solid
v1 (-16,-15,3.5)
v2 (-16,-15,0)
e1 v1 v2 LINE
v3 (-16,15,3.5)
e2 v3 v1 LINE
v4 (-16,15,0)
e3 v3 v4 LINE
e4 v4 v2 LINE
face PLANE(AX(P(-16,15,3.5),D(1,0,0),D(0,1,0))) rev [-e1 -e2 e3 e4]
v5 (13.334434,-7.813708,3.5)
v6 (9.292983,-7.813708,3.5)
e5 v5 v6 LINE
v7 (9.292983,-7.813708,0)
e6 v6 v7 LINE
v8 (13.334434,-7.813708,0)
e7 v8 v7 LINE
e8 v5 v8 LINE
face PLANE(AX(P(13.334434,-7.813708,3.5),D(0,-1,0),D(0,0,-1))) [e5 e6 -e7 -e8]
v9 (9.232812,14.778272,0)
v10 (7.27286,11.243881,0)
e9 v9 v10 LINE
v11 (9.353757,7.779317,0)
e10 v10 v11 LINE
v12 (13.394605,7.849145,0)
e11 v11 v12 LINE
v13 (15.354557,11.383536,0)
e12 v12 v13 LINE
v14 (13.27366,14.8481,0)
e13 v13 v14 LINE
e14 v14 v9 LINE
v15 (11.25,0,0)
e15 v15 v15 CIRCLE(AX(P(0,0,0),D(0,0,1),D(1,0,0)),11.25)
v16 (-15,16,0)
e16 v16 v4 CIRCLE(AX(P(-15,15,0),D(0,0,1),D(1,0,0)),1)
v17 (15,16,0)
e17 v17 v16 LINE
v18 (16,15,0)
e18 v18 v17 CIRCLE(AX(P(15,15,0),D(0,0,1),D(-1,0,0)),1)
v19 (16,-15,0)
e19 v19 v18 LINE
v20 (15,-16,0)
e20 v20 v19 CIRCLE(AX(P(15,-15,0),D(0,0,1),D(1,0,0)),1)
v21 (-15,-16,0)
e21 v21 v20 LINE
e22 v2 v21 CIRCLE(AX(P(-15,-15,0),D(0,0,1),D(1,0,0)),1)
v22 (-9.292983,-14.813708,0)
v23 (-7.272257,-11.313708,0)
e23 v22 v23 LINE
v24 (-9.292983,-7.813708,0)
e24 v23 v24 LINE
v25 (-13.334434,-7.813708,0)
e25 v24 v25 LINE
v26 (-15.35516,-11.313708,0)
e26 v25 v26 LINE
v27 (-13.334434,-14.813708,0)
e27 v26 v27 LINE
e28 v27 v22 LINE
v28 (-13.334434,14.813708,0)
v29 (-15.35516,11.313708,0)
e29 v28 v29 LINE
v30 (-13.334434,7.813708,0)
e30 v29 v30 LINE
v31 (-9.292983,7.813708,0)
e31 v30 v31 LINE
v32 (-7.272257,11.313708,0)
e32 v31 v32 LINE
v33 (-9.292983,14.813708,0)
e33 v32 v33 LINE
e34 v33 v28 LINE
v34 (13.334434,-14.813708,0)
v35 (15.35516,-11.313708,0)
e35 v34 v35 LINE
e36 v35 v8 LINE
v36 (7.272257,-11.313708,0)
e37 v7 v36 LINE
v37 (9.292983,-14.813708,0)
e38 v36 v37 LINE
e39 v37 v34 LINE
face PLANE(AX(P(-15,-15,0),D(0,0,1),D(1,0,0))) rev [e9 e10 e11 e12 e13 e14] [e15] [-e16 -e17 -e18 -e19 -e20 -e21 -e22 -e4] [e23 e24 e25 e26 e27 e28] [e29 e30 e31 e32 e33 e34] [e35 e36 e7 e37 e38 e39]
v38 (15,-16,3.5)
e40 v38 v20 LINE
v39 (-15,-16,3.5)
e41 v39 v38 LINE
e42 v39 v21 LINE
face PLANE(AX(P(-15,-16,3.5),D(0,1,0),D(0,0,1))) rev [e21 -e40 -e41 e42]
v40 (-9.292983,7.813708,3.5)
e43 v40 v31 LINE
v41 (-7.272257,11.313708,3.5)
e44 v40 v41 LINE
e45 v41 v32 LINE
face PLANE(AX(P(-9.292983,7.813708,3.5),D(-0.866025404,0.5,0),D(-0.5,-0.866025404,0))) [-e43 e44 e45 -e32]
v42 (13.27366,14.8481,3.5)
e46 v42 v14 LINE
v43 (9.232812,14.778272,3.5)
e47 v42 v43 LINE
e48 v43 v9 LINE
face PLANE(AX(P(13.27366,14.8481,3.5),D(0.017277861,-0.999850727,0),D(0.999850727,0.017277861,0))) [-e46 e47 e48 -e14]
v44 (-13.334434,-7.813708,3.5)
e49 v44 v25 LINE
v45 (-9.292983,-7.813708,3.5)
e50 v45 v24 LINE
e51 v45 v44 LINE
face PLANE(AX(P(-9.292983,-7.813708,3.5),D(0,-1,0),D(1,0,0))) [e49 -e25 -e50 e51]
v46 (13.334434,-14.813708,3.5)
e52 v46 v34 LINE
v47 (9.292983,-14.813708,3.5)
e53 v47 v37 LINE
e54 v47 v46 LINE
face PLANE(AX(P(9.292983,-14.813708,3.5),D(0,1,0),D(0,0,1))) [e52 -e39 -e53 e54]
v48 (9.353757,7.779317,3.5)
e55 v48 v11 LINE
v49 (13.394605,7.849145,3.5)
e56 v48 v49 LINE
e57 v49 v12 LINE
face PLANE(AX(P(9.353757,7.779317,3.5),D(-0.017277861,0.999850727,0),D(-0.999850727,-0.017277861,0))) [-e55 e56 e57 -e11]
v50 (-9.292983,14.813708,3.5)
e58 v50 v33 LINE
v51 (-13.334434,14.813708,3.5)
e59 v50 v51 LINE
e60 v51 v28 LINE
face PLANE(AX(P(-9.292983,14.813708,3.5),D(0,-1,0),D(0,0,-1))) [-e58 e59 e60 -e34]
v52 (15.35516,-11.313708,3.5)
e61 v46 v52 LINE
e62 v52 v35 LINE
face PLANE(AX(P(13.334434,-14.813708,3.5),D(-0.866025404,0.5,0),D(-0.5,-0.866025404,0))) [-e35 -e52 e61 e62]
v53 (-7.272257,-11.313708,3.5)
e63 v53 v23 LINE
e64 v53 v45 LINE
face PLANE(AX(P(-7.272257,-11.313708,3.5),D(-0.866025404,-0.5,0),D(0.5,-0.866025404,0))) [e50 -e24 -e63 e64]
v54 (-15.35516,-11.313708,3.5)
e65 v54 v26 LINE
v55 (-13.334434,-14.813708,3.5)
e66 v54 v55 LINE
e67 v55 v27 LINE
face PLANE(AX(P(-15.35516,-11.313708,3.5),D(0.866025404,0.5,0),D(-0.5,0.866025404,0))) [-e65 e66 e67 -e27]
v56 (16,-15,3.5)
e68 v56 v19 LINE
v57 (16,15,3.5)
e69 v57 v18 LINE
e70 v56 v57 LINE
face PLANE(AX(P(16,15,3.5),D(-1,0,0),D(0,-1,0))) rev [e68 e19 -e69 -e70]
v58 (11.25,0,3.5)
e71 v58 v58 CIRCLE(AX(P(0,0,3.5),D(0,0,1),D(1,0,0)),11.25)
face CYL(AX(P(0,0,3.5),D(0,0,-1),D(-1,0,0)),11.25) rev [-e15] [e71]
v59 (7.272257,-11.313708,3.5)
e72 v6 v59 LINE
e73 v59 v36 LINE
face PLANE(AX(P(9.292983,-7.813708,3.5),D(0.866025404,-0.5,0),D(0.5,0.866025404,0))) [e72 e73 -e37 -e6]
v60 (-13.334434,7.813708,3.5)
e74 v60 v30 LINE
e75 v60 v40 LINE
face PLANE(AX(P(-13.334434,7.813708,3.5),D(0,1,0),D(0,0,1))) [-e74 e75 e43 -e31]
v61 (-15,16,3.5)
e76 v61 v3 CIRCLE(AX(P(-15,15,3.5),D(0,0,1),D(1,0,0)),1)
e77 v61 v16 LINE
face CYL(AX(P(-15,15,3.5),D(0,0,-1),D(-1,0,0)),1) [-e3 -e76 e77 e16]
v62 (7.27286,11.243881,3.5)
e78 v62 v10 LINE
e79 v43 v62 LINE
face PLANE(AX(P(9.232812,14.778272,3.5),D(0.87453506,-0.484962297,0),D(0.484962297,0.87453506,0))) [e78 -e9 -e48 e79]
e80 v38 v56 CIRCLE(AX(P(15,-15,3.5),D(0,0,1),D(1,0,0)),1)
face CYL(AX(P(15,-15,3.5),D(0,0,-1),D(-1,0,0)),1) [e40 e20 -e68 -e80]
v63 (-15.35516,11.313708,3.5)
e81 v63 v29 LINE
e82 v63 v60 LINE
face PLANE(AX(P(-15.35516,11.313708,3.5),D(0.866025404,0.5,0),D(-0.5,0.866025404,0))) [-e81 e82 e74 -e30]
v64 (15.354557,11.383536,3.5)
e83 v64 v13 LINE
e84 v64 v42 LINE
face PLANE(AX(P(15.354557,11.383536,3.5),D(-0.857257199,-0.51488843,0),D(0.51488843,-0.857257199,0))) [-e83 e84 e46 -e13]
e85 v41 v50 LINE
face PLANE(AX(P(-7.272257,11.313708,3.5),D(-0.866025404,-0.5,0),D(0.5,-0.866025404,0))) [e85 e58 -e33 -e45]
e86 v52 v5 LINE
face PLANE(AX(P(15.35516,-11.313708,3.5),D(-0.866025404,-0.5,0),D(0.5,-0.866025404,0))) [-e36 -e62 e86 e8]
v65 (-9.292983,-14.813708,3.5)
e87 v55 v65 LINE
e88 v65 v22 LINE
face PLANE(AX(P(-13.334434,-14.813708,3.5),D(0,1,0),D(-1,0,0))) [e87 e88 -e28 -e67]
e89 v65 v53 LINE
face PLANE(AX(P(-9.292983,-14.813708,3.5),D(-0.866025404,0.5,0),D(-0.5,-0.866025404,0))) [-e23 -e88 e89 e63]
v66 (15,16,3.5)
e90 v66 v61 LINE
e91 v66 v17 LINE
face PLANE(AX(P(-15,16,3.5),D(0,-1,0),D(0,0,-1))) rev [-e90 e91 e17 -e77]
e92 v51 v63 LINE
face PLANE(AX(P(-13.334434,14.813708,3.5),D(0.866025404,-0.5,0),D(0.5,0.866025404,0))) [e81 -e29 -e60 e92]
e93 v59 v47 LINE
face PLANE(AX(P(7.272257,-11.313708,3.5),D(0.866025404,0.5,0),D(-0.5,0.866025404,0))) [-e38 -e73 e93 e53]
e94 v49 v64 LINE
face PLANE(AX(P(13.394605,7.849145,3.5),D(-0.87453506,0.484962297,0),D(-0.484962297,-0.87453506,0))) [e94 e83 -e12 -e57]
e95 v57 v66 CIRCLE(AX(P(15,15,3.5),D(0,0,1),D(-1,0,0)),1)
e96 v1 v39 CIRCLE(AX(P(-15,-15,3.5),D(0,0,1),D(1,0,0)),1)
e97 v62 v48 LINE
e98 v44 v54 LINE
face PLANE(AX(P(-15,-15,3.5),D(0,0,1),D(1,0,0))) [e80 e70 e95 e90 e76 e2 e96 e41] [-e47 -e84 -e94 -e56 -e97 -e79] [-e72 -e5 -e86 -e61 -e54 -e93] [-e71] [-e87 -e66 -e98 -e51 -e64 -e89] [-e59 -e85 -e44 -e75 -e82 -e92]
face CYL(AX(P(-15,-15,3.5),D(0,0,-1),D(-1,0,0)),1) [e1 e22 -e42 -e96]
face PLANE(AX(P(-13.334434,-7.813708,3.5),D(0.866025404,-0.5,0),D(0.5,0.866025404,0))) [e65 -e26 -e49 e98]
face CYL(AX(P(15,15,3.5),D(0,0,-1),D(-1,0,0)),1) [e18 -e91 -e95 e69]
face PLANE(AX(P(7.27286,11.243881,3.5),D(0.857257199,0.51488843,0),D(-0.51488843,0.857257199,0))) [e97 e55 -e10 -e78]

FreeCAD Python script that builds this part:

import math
import FreeCAD as App
import Part
import Sketcher
from FreeCAD import Vector
Q = App.Units.Quantity

doc = App.newDocument("Part")
body = doc.addObject("PartDesign::Body", "Body")

sketch1 = body.newObject("Sketcher::SketchObject", "Sketch")
sketch1.AttachmentSupport = (doc.getObject("XY_Plane"), [""])
sketch1.MapMode = "FlatFace"
sketch1.addGeometry([
    Part.LineSegment(Vector(15, 16, 0), Vector(-15, 16, 0)),
    Part.ArcOfCircle(Part.Circle(Vector(-15, 15, 0), Vector(0, 0, 1), 1), math.radians(90), math.radians(180)),
    Part.LineSegment(Vector(-16, 15, 0), Vector(-16, -15, 0)),
    Part.ArcOfCircle(Part.Circle(Vector(-15, -15, 0), Vector(0, 0, 1), 1), math.radians(-180), math.radians(-90)),
    Part.LineSegment(Vector(-15, -16, 0), Vector(15, -16, 0)),
    Part.ArcOfCircle(Part.Circle(Vector(15, -15, 0), Vector(0, 0, 1), 1), math.radians(-90), math.radians(0)),
    Part.LineSegment(Vector(16, -15, 0), Vector(16, 15, 0)),
    Part.ArcOfCircle(Part.Circle(Vector(15, 15, 0), Vector(0, 0, 1), 1), math.radians(0), math.radians(90)),
    Part.LineSegment(Vector(15.4, -11.3, 0), Vector(13.3, -14.8, 0)),
    Part.LineSegment(Vector(13.3, -14.8, 0), Vector(9.3, -14.8, 0)),
    Part.LineSegment(Vector(9.3, -14.8, 0), Vector(7.3, -11.3, 0)),
    Part.LineSegment(Vector(7.3, -11.3, 0), Vector(9.3, -7.8, 0)),
    Part.LineSegment(Vector(9.3, -7.8, 0), Vector(13.3, -7.8, 0)),
    Part.LineSegment(Vector(13.3, -7.8, 0), Vector(15.4, -11.3, 0)),
    Part.LineSegment(Vector(-7.3, -11.3, 0), Vector(-9.3, -14.8, 0)),
    Part.LineSegment(Vector(-9.3, -14.8, 0), Vector(-13.3, -14.8, 0)),
    Part.LineSegment(Vector(-13.3, -14.8, 0), Vector(-15.4, -11.3, 0)),
    Part.LineSegment(Vector(-15.4, -11.3, 0), Vector(-13.3, -7.8, 0)),
    Part.LineSegment(Vector(-13.3, -7.8, 0), Vector(-9.3, -7.8, 0)),
    Part.LineSegment(Vector(-9.3, -7.8, 0), Vector(-7.3, -11.3, 0)),
    Part.Circle(Vector(0, 0, 0), Vector(0, 0, 1), 11.2),
    Part.LineSegment(Vector(7.3, 11.2, 0), Vector(9.2, 14.8, 0)),
    Part.LineSegment(Vector(9.2, 14.8, 0), Vector(13.3, 14.8, 0)),
    Part.LineSegment(Vector(13.3, 14.8, 0), Vector(15.4, 11.4, 0)),
    Part.LineSegment(Vector(15.4, 11.4, 0), Vector(13.4, 7.8, 0)),
    Part.LineSegment(Vector(13.4, 7.8, 0), Vector(9.4, 7.8, 0)),
    Part.LineSegment(Vector(9.4, 7.8, 0), Vector(7.3, 11.2, 0)),
    Part.LineSegment(Vector(-7.3, 11.3, 0), Vector(-9.3, 7.8, 0)),
    Part.LineSegment(Vector(-9.3, 7.8, 0), Vector(-13.3, 7.8, 0)),
    Part.LineSegment(Vector(-13.3, 7.8, 0), Vector(-15.4, 11.3, 0)),
    Part.LineSegment(Vector(-15.4, 11.3, 0), Vector(-13.3, 14.8, 0)),
    Part.LineSegment(Vector(-13.3, 14.8, 0), Vector(-9.3, 14.8, 0)),
    Part.LineSegment(Vector(-9.3, 14.8, 0), Vector(-7.3, 11.3, 0)),
], False)
sketch1.addConstraint([
    Sketcher.Constraint("Tangent", 0, 2, 1, 1),
    Sketcher.Constraint("Tangent", 1, 2, 2, 1),
    Sketcher.Constraint("Tangent", 2, 2, 3, 1),
    Sketcher.Constraint("Tangent", 3, 2, 4, 1),
    Sketcher.Constraint("Tangent", 4, 2, 5, 1),
    Sketcher.Constraint("Tangent", 5, 2, 6, 1),
    Sketcher.Constraint("Tangent", 6, 2, 7, 1),
    Sketcher.Constraint("Tangent", 7, 2, 0, 1),
    Sketcher.Constraint("Coincident", 8, 2, 9, 1),
    Sketcher.Constraint("Coincident", 9, 2, 10, 1),
    Sketcher.Constraint("Coincident", 10, 2, 11, 1),
    Sketcher.Constraint("Coincident", 11, 2, 12, 1),
    Sketcher.Constraint("Coincident", 12, 2, 13, 1),
    Sketcher.Constraint("Coincident", 13, 2, 8, 1),
    Sketcher.Constraint("Coincident", 14, 2, 15, 1),
    Sketcher.Constraint("Coincident", 15, 2, 16, 1),
    Sketcher.Constraint("Coincident", 16, 2, 17, 1),
    Sketcher.Constraint("Coincident", 17, 2, 18, 1),
    Sketcher.Constraint("Coincident", 18, 2, 19, 1),
    Sketcher.Constraint("Coincident", 19, 2, 14, 1),
    Sketcher.Constraint("Coincident", 21, 2, 22, 1),
    Sketcher.Constraint("Coincident", 22, 2, 23, 1),
    Sketcher.Constraint("Coincident", 23, 2, 24, 1),
    Sketcher.Constraint("Coincident", 24, 2, 25, 1),
    Sketcher.Constraint("Coincident", 25, 2, 26, 1),
    Sketcher.Constraint("Coincident", 26, 2, 21, 1),
    Sketcher.Constraint("Coincident", 27, 2, 28, 1),
    Sketcher.Constraint("Coincident", 28, 2, 29, 1),
    Sketcher.Constraint("Coincident", 29, 2, 30, 1),
    Sketcher.Constraint("Coincident", 30, 2, 31, 1),
    Sketcher.Constraint("Coincident", 31, 2, 32, 1),
    Sketcher.Constraint("Coincident", 32, 2, 27, 1),
    Sketcher.Constraint("Horizontal", 0),
    Sketcher.Constraint("Vertical", 2),
    Sketcher.Constraint("Horizontal", 4),
    Sketcher.Constraint("Vertical", 6),
    Sketcher.Constraint("Horizontal", 9),
    Sketcher.Constraint("Horizontal", 12),
    Sketcher.Constraint("Horizontal", 15),
    Sketcher.Constraint("Horizontal", 18),
    Sketcher.Constraint("Horizontal", 28),
    Sketcher.Constraint("Horizontal", 31),
    Sketcher.Constraint("Coincident", 20, 3, -1, 1),
    Sketcher.Constraint("Equal", 1, 3),
    Sketcher.Constraint("Equal", 3, 5),
    Sketcher.Constraint("Equal", 5, 7),
    Sketcher.Constraint("Symmetric", 1, 3, 5, 3, -1, 1),
    Sketcher.Constraint("Symmetric", 11, 2, 27, 2, -1, 1),
    Sketcher.Constraint("Symmetric", 13, 2, 29, 2, -1, 1),
    Sketcher.Constraint("Symmetric", 8, 2, 30, 2, -1, 1),
    Sketcher.Constraint("Symmetric", 10, 2, 32, 2, -1, 1),
    Sketcher.Constraint("Symmetric", 9, 2, 14, 2, -2),
    Sketcher.Constraint("Symmetric", 13, 2, 16, 2, -2),
    Sketcher.Constraint("Symmetric", 12, 2, 17, 2, -2),
    Sketcher.Constraint("Symmetric", 10, 2, 19, 2, -2),
    Sketcher.Constraint("Parallel", 8, 11),
    Sketcher.Constraint("Parallel", 10, 13),
    Sketcher.Constraint("Parallel", 11, 14),
    Sketcher.Constraint("Parallel", 13, 16),
    Sketcher.Constraint("Parallel", 16, 19),
    Sketcher.Constraint("Parallel", 21, 24),
    Sketcher.Constraint("Parallel", 22, 25),
    Sketcher.Constraint("Parallel", 23, 26),
    Sketcher.Constraint("Parallel", 19, 29),
    Sketcher.Constraint("Parallel", 29, 32),
    Sketcher.Constraint("Horizontal", 10, 2, 13, 2),
    Sketcher.Constraint("Vertical", 9, 2, 11, 2),
    Sketcher.Constraint("Equal", 4, 2),
    Sketcher.Constraint("Equal", 19, 21),
    Sketcher.Constraint("Equal", 21, 22),
    Sketcher.Constraint("Equal", 22, 23),
    Sketcher.Constraint("Equal", 23, 24),
    Sketcher.Constraint("Radius", 1, Q("1 mm")),
    Sketcher.Constraint("Diameter", 20, Q("22.5 mm")),
    Sketcher.Constraint("DistanceX", 0, 2, 0, 1, Q("30 mm")),
    Sketcher.Constraint("Angle", 8, Q("-120 deg")),
    Sketcher.Constraint("DistanceY", 9, 2, 11, 2, Q("7 mm")),
    Sketcher.Constraint("Angle", 21, Q("60.989998 deg")),
    Sketcher.Constraint("Angle", 22, Q("0.989998 deg")),
    Sketcher.Constraint("Angle", 23, Q("-59.010002 deg")),
    Sketcher.Constraint("DistanceX", 9, 2, 9, 1, Q("4.041452 mm")),
    Sketcher.Constraint("DistanceY", -1, 1, 22, 2, Q("14.8481 mm")),
    Sketcher.Constraint("DistanceY", 8, 2, -1, 1, Q("14.813708 mm")),
    Sketcher.Constraint("DistanceX", -1, 1, 13, 2, Q("15.35516 mm")),
    Sketcher.Constraint("DistanceX", -1, 1, 21, 2, Q("9.232812 mm")),
])
pad1 = body.newObject("PartDesign::Pad", "Pad")
pad1.Profile = sketch1
pad1.Length = 3.5

doc.recompute()
